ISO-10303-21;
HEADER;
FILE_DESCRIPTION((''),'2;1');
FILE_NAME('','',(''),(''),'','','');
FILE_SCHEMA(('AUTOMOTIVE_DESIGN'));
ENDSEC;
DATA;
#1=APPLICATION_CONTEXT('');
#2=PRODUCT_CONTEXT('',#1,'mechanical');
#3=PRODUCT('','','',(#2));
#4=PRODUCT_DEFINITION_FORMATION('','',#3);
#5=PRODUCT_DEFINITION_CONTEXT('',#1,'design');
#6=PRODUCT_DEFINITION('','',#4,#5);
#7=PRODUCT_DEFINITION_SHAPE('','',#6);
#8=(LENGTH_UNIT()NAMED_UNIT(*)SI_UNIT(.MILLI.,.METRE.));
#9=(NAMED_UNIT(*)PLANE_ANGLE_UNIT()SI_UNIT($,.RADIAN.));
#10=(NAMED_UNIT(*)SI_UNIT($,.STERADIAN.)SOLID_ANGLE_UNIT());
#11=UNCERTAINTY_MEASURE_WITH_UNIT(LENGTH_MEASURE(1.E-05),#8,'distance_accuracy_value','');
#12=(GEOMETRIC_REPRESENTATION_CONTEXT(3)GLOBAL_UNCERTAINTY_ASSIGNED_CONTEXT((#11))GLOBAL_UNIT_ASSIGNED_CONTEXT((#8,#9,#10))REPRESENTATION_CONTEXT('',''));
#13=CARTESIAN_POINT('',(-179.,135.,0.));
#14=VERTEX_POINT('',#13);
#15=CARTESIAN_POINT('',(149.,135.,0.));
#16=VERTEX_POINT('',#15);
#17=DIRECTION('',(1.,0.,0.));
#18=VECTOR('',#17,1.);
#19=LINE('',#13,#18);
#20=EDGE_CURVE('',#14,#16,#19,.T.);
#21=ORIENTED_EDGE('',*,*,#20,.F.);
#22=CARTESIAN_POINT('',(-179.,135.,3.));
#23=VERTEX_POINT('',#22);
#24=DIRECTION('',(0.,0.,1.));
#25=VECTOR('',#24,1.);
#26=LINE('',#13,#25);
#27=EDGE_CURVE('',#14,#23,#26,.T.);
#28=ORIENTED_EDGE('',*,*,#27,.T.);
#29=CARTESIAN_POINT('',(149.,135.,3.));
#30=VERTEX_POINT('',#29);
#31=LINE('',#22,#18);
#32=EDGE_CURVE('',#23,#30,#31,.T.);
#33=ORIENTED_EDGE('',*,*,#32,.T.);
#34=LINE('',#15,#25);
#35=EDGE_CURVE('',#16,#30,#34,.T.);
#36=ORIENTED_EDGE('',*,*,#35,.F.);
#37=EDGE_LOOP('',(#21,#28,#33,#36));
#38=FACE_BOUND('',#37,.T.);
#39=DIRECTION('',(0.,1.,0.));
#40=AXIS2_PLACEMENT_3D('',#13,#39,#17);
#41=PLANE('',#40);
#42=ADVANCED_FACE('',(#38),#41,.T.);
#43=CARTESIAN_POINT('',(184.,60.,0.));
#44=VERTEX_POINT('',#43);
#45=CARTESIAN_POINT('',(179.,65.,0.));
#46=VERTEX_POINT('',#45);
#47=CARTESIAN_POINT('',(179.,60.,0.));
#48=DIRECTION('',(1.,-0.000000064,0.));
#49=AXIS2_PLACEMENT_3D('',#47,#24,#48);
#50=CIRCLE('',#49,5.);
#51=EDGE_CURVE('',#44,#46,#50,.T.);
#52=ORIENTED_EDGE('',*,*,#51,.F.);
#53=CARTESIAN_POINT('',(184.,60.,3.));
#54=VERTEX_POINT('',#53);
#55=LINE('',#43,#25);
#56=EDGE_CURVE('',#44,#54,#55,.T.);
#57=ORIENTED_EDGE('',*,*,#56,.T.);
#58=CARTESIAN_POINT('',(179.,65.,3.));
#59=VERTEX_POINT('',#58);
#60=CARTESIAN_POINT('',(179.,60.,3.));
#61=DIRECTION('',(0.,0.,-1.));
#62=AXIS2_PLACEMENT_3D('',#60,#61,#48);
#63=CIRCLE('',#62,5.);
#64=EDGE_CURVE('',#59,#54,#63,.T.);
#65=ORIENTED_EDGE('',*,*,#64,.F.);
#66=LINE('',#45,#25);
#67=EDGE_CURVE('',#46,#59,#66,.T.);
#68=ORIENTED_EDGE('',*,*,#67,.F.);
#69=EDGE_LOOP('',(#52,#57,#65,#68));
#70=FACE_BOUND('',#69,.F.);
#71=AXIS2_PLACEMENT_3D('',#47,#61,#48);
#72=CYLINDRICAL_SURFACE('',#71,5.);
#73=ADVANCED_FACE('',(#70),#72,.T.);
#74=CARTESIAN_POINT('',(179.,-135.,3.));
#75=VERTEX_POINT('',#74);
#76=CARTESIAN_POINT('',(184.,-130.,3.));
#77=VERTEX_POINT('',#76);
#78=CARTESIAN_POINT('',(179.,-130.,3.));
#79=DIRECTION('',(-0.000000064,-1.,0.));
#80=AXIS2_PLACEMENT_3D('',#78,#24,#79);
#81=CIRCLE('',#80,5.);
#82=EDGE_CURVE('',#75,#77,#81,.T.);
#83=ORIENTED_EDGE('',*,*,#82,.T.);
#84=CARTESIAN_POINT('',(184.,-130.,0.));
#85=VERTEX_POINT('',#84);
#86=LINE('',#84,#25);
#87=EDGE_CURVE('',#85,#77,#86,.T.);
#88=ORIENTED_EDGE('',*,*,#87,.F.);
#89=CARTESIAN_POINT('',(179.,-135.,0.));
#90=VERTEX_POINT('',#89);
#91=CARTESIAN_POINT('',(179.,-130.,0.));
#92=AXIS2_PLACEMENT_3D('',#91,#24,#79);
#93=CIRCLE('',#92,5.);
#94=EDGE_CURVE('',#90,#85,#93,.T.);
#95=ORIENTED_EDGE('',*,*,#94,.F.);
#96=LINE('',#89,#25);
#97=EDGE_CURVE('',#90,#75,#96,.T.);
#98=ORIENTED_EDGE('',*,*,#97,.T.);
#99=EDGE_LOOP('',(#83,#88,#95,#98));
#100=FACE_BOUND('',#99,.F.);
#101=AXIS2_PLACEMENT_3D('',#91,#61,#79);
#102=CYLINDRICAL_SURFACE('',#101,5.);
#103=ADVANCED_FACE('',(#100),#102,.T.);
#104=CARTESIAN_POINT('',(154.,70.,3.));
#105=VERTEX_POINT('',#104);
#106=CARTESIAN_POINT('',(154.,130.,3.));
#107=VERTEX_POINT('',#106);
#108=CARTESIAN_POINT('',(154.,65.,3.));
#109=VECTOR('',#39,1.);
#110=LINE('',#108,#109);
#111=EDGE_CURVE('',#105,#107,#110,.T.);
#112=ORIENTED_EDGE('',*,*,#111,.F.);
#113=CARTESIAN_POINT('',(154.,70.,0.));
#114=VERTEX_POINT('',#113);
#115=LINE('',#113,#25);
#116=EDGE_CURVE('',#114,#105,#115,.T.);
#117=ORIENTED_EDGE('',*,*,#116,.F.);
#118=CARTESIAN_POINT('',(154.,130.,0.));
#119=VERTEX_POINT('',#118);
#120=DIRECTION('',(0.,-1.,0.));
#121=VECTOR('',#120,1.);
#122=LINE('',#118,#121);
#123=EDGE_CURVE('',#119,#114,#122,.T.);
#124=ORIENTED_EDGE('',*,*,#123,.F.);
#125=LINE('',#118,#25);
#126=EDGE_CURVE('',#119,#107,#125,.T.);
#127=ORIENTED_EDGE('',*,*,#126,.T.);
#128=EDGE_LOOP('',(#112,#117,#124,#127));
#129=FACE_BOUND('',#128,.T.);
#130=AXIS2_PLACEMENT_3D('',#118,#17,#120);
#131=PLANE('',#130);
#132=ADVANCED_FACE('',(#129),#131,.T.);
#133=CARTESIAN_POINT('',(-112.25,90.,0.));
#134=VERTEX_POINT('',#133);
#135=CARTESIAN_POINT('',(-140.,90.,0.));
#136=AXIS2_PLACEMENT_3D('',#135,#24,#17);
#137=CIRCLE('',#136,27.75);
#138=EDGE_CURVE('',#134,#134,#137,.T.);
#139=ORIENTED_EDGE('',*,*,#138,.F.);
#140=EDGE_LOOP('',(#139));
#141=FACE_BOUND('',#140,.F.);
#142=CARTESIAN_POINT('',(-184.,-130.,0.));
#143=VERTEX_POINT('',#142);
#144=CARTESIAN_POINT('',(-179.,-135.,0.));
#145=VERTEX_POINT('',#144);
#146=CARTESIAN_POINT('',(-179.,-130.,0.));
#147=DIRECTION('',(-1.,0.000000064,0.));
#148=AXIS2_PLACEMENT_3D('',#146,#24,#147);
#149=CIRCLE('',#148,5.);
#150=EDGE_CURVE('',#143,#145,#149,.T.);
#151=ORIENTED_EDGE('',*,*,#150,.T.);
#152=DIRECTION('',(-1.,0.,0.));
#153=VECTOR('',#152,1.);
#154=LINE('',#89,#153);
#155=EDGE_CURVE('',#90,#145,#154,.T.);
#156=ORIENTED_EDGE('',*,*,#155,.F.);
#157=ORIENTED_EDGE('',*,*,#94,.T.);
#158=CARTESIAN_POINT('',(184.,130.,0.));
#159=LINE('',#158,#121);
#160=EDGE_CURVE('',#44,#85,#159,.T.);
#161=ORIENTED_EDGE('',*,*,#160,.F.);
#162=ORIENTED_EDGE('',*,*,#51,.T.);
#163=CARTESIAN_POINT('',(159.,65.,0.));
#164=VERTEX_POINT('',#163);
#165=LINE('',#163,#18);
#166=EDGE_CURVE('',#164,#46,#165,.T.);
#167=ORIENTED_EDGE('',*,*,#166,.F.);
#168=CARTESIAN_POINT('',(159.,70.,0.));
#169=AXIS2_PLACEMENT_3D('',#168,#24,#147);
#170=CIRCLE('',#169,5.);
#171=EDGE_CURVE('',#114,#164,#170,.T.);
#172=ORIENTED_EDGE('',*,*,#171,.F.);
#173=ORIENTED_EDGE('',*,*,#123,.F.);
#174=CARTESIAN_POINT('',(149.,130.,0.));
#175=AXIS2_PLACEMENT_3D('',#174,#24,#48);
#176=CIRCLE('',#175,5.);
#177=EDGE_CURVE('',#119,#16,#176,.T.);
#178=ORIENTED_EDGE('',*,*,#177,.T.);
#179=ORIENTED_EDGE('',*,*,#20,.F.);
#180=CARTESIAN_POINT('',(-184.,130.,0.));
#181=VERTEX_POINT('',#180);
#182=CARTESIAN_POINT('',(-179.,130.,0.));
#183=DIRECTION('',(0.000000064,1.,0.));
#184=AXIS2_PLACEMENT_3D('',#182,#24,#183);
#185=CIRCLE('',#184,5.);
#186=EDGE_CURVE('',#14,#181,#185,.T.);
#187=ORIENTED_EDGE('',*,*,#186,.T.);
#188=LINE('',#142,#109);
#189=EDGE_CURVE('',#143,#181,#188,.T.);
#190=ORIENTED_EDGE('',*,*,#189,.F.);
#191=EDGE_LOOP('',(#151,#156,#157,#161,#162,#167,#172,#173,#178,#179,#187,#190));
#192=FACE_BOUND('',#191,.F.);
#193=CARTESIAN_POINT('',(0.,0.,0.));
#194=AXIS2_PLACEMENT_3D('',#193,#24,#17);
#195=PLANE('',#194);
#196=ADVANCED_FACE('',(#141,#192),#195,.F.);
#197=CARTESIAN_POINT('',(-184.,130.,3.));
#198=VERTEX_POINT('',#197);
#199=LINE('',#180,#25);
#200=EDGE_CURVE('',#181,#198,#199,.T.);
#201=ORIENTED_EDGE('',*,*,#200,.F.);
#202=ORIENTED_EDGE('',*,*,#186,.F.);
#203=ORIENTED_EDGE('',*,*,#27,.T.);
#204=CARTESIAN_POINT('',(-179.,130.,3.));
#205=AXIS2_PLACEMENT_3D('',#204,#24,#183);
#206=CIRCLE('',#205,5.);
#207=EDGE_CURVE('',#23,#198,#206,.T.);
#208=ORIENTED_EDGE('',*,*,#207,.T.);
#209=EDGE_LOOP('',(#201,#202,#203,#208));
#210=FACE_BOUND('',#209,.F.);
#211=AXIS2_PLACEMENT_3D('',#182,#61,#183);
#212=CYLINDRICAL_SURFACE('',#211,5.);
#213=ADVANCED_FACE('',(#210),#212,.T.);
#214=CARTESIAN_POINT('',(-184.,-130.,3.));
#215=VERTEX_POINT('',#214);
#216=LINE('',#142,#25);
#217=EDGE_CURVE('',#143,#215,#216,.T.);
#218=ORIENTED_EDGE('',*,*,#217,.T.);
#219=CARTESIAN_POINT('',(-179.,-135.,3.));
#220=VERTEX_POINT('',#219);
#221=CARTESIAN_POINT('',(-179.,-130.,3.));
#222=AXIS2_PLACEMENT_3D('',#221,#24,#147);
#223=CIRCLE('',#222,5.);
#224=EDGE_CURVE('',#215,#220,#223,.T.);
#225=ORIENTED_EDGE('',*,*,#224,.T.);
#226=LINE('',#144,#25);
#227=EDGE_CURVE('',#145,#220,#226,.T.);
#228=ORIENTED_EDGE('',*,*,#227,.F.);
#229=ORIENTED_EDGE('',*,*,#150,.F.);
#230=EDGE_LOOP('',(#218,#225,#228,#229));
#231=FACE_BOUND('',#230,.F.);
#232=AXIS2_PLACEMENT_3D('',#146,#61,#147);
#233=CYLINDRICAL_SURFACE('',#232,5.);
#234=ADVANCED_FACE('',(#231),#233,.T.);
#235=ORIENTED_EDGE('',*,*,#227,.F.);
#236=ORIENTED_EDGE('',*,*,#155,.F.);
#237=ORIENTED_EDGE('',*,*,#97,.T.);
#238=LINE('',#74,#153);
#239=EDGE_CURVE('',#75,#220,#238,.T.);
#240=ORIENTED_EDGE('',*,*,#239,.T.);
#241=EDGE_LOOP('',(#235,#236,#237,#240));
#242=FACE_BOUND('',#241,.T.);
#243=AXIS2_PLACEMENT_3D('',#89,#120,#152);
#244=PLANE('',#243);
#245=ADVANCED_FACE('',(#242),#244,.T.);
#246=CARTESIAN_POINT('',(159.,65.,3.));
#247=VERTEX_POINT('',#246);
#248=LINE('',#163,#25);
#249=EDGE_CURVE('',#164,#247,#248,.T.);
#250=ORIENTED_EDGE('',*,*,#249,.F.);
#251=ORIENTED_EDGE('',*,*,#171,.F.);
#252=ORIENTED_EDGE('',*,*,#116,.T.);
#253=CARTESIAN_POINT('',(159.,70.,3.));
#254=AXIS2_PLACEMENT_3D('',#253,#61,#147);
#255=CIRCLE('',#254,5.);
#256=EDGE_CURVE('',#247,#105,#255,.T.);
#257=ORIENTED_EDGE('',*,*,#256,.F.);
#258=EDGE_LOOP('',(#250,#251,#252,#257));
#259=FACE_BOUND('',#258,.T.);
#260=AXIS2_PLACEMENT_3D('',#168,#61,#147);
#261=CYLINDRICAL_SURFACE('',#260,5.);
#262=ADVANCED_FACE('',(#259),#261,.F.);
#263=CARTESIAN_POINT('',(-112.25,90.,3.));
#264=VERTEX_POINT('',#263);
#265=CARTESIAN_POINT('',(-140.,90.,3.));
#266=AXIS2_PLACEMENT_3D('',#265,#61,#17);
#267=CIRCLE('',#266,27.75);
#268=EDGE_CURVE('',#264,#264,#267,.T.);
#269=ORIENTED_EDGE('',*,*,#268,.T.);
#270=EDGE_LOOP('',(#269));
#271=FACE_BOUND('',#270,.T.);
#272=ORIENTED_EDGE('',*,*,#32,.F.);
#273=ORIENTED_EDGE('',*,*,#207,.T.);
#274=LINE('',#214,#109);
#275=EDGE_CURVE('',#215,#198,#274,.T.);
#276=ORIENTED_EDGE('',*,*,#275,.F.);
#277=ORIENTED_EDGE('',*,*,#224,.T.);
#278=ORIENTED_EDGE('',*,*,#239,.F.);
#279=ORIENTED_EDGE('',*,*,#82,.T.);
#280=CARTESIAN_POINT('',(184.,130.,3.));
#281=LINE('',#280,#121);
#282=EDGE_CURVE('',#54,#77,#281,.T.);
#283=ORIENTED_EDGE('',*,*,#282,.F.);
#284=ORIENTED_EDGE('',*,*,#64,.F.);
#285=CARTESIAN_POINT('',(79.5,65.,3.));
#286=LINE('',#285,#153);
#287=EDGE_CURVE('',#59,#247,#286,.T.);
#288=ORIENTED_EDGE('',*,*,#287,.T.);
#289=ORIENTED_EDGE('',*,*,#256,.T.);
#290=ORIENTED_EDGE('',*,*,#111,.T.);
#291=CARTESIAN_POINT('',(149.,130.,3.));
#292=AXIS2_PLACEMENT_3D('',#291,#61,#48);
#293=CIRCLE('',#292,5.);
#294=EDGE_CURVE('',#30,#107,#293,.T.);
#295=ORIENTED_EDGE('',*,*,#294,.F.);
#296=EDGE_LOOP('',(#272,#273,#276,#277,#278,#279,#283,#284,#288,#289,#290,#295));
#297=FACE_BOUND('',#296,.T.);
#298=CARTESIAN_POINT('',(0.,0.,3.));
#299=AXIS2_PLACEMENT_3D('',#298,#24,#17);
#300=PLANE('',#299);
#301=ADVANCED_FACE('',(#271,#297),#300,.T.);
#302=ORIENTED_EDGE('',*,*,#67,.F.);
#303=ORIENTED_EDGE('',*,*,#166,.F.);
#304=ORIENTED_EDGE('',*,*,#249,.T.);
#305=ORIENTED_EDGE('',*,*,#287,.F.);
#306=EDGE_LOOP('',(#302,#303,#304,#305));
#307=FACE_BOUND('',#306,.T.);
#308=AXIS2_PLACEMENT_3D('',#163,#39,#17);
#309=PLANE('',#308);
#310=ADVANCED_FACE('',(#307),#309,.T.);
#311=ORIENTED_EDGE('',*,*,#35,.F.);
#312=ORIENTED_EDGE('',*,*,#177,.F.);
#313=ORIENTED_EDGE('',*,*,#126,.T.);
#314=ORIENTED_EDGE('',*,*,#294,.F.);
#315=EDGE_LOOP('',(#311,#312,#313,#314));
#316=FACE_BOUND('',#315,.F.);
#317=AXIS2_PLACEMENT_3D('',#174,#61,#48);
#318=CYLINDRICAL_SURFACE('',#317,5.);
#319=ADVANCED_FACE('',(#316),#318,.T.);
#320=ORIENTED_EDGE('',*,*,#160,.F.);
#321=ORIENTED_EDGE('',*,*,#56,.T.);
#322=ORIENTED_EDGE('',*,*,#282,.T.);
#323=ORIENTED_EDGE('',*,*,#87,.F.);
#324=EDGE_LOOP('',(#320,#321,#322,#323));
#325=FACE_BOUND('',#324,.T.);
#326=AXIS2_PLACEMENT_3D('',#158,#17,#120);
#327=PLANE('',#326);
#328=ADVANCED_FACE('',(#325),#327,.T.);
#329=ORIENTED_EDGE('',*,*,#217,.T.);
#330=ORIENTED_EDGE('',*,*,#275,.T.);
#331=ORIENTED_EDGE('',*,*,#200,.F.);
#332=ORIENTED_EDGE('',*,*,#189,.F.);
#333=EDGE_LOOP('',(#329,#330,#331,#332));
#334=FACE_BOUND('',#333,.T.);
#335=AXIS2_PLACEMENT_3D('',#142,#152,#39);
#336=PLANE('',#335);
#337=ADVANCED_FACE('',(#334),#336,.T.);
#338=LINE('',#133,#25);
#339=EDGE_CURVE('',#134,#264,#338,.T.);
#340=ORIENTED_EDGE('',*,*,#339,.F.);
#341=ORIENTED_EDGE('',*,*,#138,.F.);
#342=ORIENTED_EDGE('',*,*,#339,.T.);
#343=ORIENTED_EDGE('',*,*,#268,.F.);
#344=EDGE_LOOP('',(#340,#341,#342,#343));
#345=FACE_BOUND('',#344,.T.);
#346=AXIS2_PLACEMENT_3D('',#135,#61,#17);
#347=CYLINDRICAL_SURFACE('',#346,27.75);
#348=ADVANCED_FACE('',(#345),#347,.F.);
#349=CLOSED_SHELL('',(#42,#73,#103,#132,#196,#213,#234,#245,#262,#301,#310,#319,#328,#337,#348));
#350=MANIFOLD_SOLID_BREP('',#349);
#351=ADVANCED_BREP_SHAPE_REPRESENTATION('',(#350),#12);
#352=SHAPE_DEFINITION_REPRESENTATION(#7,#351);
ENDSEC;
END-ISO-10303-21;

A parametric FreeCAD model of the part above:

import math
import FreeCAD as App
import Part
import Sketcher
from FreeCAD import Vector

doc = App.newDocument("Part")
body = doc.addObject("PartDesign::Body", "Body")

# Sketch on XY plane
sketch1 = body.newObject("Sketcher::SketchObject", "Sketch")
sketch1.AttachmentSupport = (doc.getObject("XY_Plane"), [""])
sketch1.MapMode = "FlatFace"
sketch1.addGeometry(Part.ArcOfCircle(Part.Circle(Vector(-179, -130, 0), Vector(0, 0, 1), 5), math.radians(180), math.radians(270)), False)
sketch1.addGeometry(Part.LineSegment(Vector(-179, -135, 0), Vector(179, -135, 0)), False)
sketch1.addGeometry(Part.ArcOfCircle(Part.Circle(Vector(179, -130, 0), Vector(0, 0, 1), 5), math.radians(-90), math.radians(0)), False)
sketch1.addGeometry(Part.LineSegment(Vector(184, -130, 0), Vector(184, 130, 0)), False)
sketch1.addGeometry(Part.ArcOfCircle(Part.Circle(Vector(179, 130, 0), Vector(0, 0, 1), 5), math.radians(0), math.radians(90)), False)
sketch1.addGeometry(Part.LineSegment(Vector(179, 135, 0), Vector(-179, 135, 0)), False)
sketch1.addGeometry(Part.ArcOfCircle(Part.Circle(Vector(-179, 130, 0), Vector(0, 0, 1), 5), math.radians(90), math.radians(180)), False)
sketch1.addGeometry(Part.LineSegment(Vector(-184, 130, 0), Vector(-184, -130, 0)), False)
sketch1.addConstraint(Sketcher.Constraint("Tangent", 0, 2, 1, 1))
sketch1.addConstraint(Sketcher.Constraint("Tangent", 1, 2, 2, 1))
sketch1.addConstraint(Sketcher.Constraint("Tangent", 2, 2, 3, 1))
sketch1.addConstraint(Sketcher.Constraint("Tangent", 3, 2, 4, 1))
sketch1.addConstraint(Sketcher.Constraint("Tangent", 4, 2, 5, 1))
sketch1.addConstraint(Sketcher.Constraint("Tangent", 5, 2, 6, 1))
sketch1.addConstraint(Sketcher.Constraint("Tangent", 6, 2, 7, 1))
sketch1.addConstraint(Sketcher.Constraint("Tangent", 7, 2, 0, 1))
sketch1.addConstraint(Sketcher.Constraint("Horizontal", 1))
sketch1.addConstraint(Sketcher.Constraint("Vertical", 3))
sketch1.addConstraint(Sketcher.Constraint("Horizontal", 5))
sketch1.addConstraint(Sketcher.Constraint("Vertical", 7))
sketch1.addConstraint(Sketcher.Constraint("Equal", 0, 2))
sketch1.addConstraint(Sketcher.Constraint("Equal", 2, 4))
sketch1.addConstraint(Sketcher.Constraint("Equal", 4, 6))
sketch1.addConstraint(Sketcher.Constraint("Symmetric", 0, 3, 4, 3, -1, 1))
sketch1.addConstraint(Sketcher.Constraint("Radius", 0, 5.0))
sketch1.addConstraint(Sketcher.Constraint("DistanceX", 1, 1, 1, 2, 358.0))
sketch1.addConstraint(Sketcher.Constraint("DistanceY", 3, 1, 3, 2, 260.0))
pad1 = body.newObject("PartDesign::Pad", "Pad")
pad1.Profile = sketch1
pad1.Length = 3

# Sketch on XY plane
sketch2 = body.newObject("Sketcher::SketchObject", "Sketch001")
sketch2.AttachmentSupport = (doc.getObject("XY_Plane"), [""])
sketch2.MapMode = "FlatFace"
sketch2.addGeometry(Part.Circle(Vector(-140, 90, 0), Vector(0, 0, 1), 28), False)
sketch2.addConstraint(Sketcher.Constraint("Diameter", 0, 55.5))
sketch2.addConstraint(Sketcher.Constraint("DistanceX", 0, 3, -1, 1, 140.0))
sketch2.addConstraint(Sketcher.Constraint("DistanceY", -1, 1, 0, 3, 90.0))
pocket1 = body.newObject("PartDesign::Pocket", "Pocket")
pocket1.Profile = sketch2
pocket1.Type = "ThroughAll"
pocket1.Midplane = True

# Sketch on XY plane
sketch3 = body.newObject("Sketcher::SketchObject", "Sketch002")
sketch3.AttachmentSupport = (doc.getObject("XY_Plane"), [""])
sketch3.MapMode = "FlatFace"
sketch3.addGeometry(Part.LineSegment(Vector(184, 135, 0), Vector(149, 135, 0)), False)
sketch3.addGeometry(Part.ArcOfCircle(Part.Circle(Vector(149, 130, 0), Vector(0, 0, 1), 5), math.radians(0), math.radians(90)), False)
sketch3.addGeometry(Part.LineSegment(Vector(154, 130, 0), Vector(154, 70, 0)), False)
sketch3.addGeometry(Part.ArcOfCircle(Part.Circle(Vector(159, 70, 0), Vector(0, 0, 1), 5), math.radians(180), math.radians(270)), False)
sketch3.addGeometry(Part.LineSegment(Vector(159, 65, 0), Vector(179, 65, 0)), False)
sketch3.addGeometry(Part.ArcOfCircle(Part.Circle(Vector(179, 60, 0), Vector(0, 0, 1), 5), math.radians(0), math.radians(90)), False)
sketch3.addGeometry(Part.LineSegment(Vector(184, 60, 0), Vector(184, 135, 0)), False)
sketch3.addConstraint(Sketcher.Constraint("Tangent", 0, 2, 1, 2))
sketch3.addConstraint(Sketcher.Constraint("Tangent", 1, 1, 2, 1))
sketch3.addConstraint(Sketcher.Constraint("Tangent", 2, 2, 3, 1))
sketch3.addConstraint(Sketcher.Constraint("Tangent", 3, 2, 4, 1))
sketch3.addConstraint(Sketcher.Constraint("Tangent", 4, 2, 5, 2))
sketch3.addConstraint(Sketcher.Constraint("Tangent", 5, 1, 6, 1))
sketch3.addConstraint(Sketcher.Constraint("Coincident", 6, 2, 0, 1))
sketch3.addConstraint(Sketcher.Constraint("Horizontal", 0))
sketch3.addConstraint(Sketcher.Constraint("Vertical", 2))
sketch3.addConstraint(Sketcher.Constraint("Horizontal", 4))
sketch3.addConstraint(Sketcher.Constraint("Vertical", 6))
sketch3.addConstraint(Sketcher.Constraint("Equal", 1, 3))
sketch3.addConstraint(Sketcher.Constraint("Equal", 3, 5))
sketch3.addConstraint(Sketcher.Constraint("Radius", 1, 5.0))
sketch3.addConstraint(Sketcher.Constraint("DistanceX", 0, 2, 0, 1, 35.0))
sketch3.addConstraint(Sketcher.Constraint("DistanceY", 2, 2, 2, 1, 60.0))
sketch3.addConstraint(Sketcher.Constraint("DistanceX", -1, 1, 1, 3, 149.0))
sketch3.addConstraint(Sketcher.Constraint("DistanceY", -1, 1, 1, 3, 130.0))
pocket2 = body.newObject("PartDesign::Pocket", "Pocket001")
pocket2.Profile = sketch3
pocket2.Type = "ThroughAll"
pocket2.Midplane = True

doc.recompute()
